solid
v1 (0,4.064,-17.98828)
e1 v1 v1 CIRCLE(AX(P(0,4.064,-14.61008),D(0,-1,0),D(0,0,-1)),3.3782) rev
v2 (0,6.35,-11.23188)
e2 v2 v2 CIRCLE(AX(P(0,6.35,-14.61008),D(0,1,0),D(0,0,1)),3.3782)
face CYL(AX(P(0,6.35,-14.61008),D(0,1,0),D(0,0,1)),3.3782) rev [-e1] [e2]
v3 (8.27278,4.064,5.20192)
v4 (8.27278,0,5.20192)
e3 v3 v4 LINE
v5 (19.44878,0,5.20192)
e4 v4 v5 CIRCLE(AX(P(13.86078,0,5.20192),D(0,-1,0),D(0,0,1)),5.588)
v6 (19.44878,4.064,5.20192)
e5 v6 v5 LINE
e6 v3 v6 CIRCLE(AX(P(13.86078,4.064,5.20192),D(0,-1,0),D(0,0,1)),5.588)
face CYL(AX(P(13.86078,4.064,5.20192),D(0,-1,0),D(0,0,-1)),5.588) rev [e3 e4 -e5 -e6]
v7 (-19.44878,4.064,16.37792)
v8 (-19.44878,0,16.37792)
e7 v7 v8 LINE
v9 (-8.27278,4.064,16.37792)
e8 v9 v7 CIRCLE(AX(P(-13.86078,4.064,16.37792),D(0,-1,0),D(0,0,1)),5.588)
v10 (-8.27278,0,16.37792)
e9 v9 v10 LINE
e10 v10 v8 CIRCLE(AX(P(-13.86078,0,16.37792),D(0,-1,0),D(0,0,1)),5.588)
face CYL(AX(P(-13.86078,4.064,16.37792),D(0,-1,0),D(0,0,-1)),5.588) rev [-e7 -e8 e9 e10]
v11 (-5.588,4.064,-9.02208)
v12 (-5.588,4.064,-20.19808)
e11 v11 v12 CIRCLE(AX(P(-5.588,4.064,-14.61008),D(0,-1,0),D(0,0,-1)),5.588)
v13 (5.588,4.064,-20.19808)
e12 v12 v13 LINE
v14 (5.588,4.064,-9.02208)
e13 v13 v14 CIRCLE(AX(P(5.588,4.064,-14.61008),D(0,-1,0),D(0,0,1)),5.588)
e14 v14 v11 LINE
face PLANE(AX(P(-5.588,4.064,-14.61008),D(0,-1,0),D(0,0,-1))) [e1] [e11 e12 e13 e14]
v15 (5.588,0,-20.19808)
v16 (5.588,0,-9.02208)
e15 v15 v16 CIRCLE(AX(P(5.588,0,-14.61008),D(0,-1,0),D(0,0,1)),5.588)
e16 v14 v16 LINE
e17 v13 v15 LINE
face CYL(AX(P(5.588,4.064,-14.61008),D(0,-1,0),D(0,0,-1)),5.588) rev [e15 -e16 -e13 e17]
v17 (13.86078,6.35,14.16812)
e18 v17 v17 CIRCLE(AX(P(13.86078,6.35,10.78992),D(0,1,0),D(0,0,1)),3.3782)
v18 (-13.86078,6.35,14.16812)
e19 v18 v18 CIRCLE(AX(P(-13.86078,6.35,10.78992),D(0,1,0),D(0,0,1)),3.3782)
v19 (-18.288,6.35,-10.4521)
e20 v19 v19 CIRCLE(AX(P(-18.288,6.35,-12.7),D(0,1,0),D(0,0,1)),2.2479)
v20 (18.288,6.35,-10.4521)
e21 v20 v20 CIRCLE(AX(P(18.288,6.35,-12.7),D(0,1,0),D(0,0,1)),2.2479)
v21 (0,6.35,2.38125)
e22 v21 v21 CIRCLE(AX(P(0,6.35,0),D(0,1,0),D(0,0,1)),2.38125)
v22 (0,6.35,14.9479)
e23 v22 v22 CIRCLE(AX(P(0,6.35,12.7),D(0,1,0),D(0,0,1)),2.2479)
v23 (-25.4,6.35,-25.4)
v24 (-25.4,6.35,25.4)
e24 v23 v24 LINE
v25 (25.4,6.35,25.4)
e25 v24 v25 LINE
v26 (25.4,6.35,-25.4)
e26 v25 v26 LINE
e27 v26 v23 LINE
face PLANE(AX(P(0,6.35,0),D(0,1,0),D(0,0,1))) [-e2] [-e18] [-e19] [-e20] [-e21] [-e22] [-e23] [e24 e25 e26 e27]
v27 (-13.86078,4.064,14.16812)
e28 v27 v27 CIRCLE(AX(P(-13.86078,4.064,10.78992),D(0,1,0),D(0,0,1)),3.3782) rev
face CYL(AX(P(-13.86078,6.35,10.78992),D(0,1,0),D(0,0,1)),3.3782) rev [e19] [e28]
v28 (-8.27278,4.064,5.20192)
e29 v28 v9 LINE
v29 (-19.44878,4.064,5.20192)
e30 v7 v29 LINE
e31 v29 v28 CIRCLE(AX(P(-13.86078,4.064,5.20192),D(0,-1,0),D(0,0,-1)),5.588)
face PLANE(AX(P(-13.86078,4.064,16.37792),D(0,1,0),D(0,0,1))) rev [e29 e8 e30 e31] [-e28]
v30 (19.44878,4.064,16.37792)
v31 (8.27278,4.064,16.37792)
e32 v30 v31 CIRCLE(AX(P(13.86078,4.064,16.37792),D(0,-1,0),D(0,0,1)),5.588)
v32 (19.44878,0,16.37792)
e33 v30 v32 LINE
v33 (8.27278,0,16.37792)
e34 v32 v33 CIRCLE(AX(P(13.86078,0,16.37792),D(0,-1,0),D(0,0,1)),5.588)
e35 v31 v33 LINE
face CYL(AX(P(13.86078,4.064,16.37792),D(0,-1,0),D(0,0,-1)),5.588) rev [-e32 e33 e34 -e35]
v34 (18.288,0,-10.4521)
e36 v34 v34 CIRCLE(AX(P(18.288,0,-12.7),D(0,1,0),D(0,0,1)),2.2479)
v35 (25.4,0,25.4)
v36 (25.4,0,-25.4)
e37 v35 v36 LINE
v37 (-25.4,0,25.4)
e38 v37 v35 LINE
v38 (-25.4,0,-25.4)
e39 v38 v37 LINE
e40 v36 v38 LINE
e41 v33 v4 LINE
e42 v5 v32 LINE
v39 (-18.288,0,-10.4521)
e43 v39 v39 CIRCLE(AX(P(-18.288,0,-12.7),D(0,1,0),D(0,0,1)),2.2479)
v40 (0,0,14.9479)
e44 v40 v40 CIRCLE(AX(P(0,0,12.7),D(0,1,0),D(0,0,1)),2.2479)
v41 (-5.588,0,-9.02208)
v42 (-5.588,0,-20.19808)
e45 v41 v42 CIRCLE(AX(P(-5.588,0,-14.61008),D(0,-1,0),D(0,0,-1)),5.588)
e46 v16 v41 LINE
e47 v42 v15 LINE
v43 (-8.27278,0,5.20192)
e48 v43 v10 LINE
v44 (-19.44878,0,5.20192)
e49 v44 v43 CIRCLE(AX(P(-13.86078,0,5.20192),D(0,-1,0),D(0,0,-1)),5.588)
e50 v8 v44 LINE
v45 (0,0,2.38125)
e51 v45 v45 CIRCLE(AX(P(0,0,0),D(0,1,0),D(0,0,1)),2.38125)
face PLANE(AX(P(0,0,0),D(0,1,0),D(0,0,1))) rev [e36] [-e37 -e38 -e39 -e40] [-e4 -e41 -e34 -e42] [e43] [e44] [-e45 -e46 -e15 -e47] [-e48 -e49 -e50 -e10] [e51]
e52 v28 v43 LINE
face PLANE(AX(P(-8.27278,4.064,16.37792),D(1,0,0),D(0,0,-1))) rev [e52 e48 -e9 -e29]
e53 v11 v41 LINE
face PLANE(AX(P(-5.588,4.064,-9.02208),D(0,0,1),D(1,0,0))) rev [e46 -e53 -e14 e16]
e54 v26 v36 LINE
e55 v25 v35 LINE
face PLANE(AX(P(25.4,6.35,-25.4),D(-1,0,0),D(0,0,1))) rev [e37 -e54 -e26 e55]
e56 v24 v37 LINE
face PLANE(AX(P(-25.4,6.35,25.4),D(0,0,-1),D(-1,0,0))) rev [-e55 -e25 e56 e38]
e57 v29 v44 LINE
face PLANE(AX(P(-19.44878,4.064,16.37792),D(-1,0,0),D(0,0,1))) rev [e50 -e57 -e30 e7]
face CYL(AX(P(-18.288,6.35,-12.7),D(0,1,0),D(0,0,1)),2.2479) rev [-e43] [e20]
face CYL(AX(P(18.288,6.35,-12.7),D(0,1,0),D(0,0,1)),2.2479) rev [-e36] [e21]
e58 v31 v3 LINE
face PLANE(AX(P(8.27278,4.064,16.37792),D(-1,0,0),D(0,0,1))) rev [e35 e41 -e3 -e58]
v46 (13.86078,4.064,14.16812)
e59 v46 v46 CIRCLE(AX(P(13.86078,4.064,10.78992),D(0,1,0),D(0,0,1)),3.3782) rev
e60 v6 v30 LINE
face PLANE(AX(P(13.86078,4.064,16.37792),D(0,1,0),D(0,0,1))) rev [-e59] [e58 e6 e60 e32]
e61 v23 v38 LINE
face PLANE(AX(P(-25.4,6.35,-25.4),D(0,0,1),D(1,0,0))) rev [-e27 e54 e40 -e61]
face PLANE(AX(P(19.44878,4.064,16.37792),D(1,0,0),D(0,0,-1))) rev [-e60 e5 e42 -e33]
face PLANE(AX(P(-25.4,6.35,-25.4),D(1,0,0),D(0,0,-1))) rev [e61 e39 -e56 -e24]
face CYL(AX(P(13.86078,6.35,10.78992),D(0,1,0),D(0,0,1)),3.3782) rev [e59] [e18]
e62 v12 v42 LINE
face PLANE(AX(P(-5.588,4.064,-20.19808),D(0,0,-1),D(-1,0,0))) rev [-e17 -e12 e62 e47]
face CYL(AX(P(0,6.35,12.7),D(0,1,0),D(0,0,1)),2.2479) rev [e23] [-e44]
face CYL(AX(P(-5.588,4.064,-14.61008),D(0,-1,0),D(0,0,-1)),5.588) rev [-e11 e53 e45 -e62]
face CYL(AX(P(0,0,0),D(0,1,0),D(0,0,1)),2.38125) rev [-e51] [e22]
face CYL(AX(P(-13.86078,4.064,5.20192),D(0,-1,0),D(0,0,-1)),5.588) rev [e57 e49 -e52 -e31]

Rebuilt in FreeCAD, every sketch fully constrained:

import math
import FreeCAD as App
import Part
import Sketcher
from FreeCAD import Vector
Q = App.Units.Quantity

doc = App.newDocument("Part")
params = doc.addObject("Spreadsheet::Sheet", "Params")
for row, (alias, value) in enumerate([
    ("sketch1_width", "2 in"),
    ("pad1_length", "0.25 in"),
    ("sketch2_diameter", "0.177 in"),
    ("hole_diameter", "0.177 in"),
    ("sketch3_diameter", "0.266 in"),
    ("hole2_diameter", "0.266 in"),
    ("sketch4_radius", "0.22 in"),
    ("sketch4_width", "0.44 in"),
    ("pocket1_length", "0.16 in"),
    ("sketch5_diameter", "0.1875 in"),
], start=1):
    params.set(f"A{row}", alias)
    params.set(f"B{row}", "=" + value)
    params.setAlias(f"B{row}", alias)

body = doc.addObject("PartDesign::Body", "Body")

# Sketch on XZ plane
sketch1 = doc.addObject("Sketcher::SketchObject", "Sketch")
body.addObject(sketch1)
sketch1.AttachmentSupport = (doc.XZ_Plane, [""])
sketch1.MapMode = "FlatFace"
sketch1.addGeometry(Part.LineSegment(Vector(-25, -25, 0), Vector(-25, 25, 0)), False)
sketch1.addGeometry(Part.LineSegment(Vector(-25, 25, 0), Vector(25, 25, 0)), False)
sketch1.addGeometry(Part.LineSegment(Vector(25, 25, 0), Vector(25, -25, 0)), False)
sketch1.addGeometry(Part.LineSegment(Vector(25, -25, 0), Vector(-25, -25, 0)), False)
sketch1.addConstraint(Sketcher.Constraint("Coincident", 0, 2, 1, 1))
sketch1.addConstraint(Sketcher.Constraint("Coincident", 1, 2, 2, 1))
sketch1.addConstraint(Sketcher.Constraint("Coincident", 2, 2, 3, 1))
sketch1.addConstraint(Sketcher.Constraint("Coincident", 3, 2, 0, 1))
sketch1.addConstraint(Sketcher.Constraint("Vertical", 0))
sketch1.addConstraint(Sketcher.Constraint("Horizontal", 1))
sketch1.addConstraint(Sketcher.Constraint("Vertical", 2))
sketch1.addConstraint(Sketcher.Constraint("Horizontal", 3))
sketch1.addConstraint(Sketcher.Constraint("Symmetric", 0, 2, 2, 2, -1, 1))
sketch1.addConstraint(Sketcher.Constraint("Equal", 3, 0))
sketch1.addConstraint(Sketcher.Constraint("DistanceX", 1, 1, 1, 2, Q("2 in")))
sketch1.setExpression("Constraints[10]", "Params.sketch1_width")
pad1 = doc.addObject("PartDesign::Pad", "Pad")
body.addObject(pad1)
pad1.Profile = sketch1
pad1.setExpression("Length", "Params.pad1_length")
pad1.Reversed = True

# Sketch on XZ plane
sketch2 = doc.addObject("Sketcher::SketchObject", "Sketch001")
body.addObject(sketch2)
sketch2.AttachmentSupport = (doc.XZ_Plane, [""])
sketch2.MapMode = "FlatFace"
sketch2.AttachmentOffset = App.Placement(Vector(0, 0, -0.25 * 25.4), App.Rotation())
sketch2.addGeometry(Part.Circle(Vector(-18.3, -12.7, 0), Vector(0, 0, 1), 2.2), False)
sketch2.addGeometry(Part.Circle(Vector(18.3, -12.7, 0), Vector(0, 0, 1), 2.2), False)
sketch2.addGeometry(Part.Circle(Vector(0, 12.7, 0), Vector(0, 0, 1), 2.2), False)
sketch2.addConstraint(Sketcher.Constraint("Equal", 0, 1))
sketch2.addConstraint(Sketcher.Constraint("Equal", 1, 2))
sketch2.addConstraint(Sketcher.Constraint("Symmetric", 0, 3, 1, 3, -2))
sketch2.addConstraint(Sketcher.Constraint("PointOnObject", 2, 3, -2))
sketch2.addConstraint(Sketcher.Constraint("Diameter", 0, Q("0.177 in")))
sketch2.addConstraint(Sketcher.Constraint("DistanceY", 0, 3, 2, 3, Q("1 in")))
sketch2.addConstraint(Sketcher.Constraint("DistanceY", 0, 3, -1, 1, Q("0.5 in")))
sketch2.addConstraint(Sketcher.Constraint("DistanceX", 0, 3, -1, 1, Q("0.72 in")))
sketch2.setExpression("Constraints[4]", "Params.sketch2_diameter")
doc.recompute()
hole = doc.addObject("PartDesign::Hole", "Hole")
body.addObject(hole)
hole.Profile = sketch2
hole.ThreadType = "None"
hole.setExpression("Diameter", "Params.hole_diameter")
hole.DepthType = "ThroughAll"
hole.Reversed = True

# Sketch on XZ plane
sketch3 = doc.addObject("Sketcher::SketchObject", "Sketch002")
body.addObject(sketch3)
sketch3.AttachmentSupport = (doc.XZ_Plane, [""])
sketch3.MapMode = "FlatFace"
sketch3.AttachmentOffset = App.Placement(Vector(0, 0, -0.25 * 25.4), App.Rotation())
sketch3.addGeometry(Part.Circle(Vector(0, -14.6, 0), Vector(0, 0, 1), 3.4), False)
sketch3.addGeometry(Part.Circle(Vector(-13.9, 10.8, 0), Vector(0, 0, 1), 3.4), False)
sketch3.addGeometry(Part.Circle(Vector(13.9, 10.8, 0), Vector(0, 0, 1), 3.4), False)
sketch3.addConstraint(Sketcher.Constraint("Equal", 0, 1))
sketch3.addConstraint(Sketcher.Constraint("Equal", 1, 2))
sketch3.addConstraint(Sketcher.Constraint("Symmetric", 1, 3, 2, 3, -2))
sketch3.addConstraint(Sketcher.Constraint("PointOnObject", 0, 3, -2))
sketch3.addConstraint(Sketcher.Constraint("Diameter", 0, Q("0.266 in")))
sketch3.addConstraint(Sketcher.Constraint("DistanceY", 0, 3, 1, 3, Q("1 in")))
sketch3.addConstraint(Sketcher.Constraint("DistanceY", 0, 3, -1, 1, Q("0.5752 in")))
sketch3.addConstraint(Sketcher.Constraint("DistanceX", 1, 3, -1, 1, Q("0.5457 in")))
sketch3.setExpression("Constraints[4]", "Params.sketch3_diameter")
doc.recompute()
hole2 = doc.addObject("PartDesign::Hole", "Hole001")
body.addObject(hole2)
hole2.Profile = sketch3
hole2.ThreadType = "None"
hole2.setExpression("Diameter", "Params.hole2_diameter")
hole2.DepthType = "ThroughAll"
hole2.Reversed = True

# Sketch on XZ plane
sketch4 = doc.addObject("Sketcher::SketchObject", "Sketch003")
body.addObject(sketch4)
sketch4.AttachmentSupport = (doc.XZ_Plane, [""])
sketch4.MapMode = "FlatFace"
sketch4.addGeometry(Part.LineSegment(Vector(-19, 16, 0), Vector(-19, 5, 0)), False)
sketch4.addGeometry(Part.ArcOfCircle(Part.Circle(Vector(-14, 5, 0), Vector(0, 0, 1), 6), math.radians(180), math.radians(360)), False)
sketch4.addGeometry(Part.LineSegment(Vector(-8, 5, 0), Vector(-8, 16, 0)), False)
sketch4.addGeometry(Part.ArcOfCircle(Part.Circle(Vector(-14, 16, 0), Vector(0, 0, 1), 6), math.radians(0), math.radians(180)), False)
sketch4.addGeometry(Part.LineSegment(Vector(8, 16, 0), Vector(8, 5, 0)), False)
sketch4.addGeometry(Part.ArcOfCircle(Part.Circle(Vector(14, 5, 0), Vector(0, 0, 1), 6), math.radians(180), math.radians(360)), False)
sketch4.addGeometry(Part.LineSegment(Vector(19, 5, 0), Vector(19, 16, 0)), False)
sketch4.addGeometry(Part.ArcOfCircle(Part.Circle(Vector(14, 16, 0), Vector(0, 0, 1), 6), math.radians(0), math.radians(180)), False)
sketch4.addGeometry(Part.LineSegment(Vector(6, -9, 0), Vector(-6, -9, 0)), False)
sketch4.addGeometry(Part.ArcOfCircle(Part.Circle(Vector(-6, -15, 0), Vector(0, 0, 1), 6), math.radians(90), math.radians(270)), False)
sketch4.addGeometry(Part.LineSegment(Vector(-6, -20, 0), Vector(6, -20, 0)), False)
sketch4.addGeometry(Part.ArcOfCircle(Part.Circle(Vector(6, -15, 0), Vector(0, 0, 1), 6), math.radians(-90), math.radians(90)), False)
sketch4.addConstraint(Sketcher.Constraint("Tangent", 0, 2, 1, 1))
sketch4.addConstraint(Sketcher.Constraint("Tangent", 1, 2, 2, 1))
sketch4.addConstraint(Sketcher.Constraint("Tangent", 2, 2, 3, 1))
sketch4.addConstraint(Sketcher.Constraint("Tangent", 3, 2, 0, 1))
sketch4.addConstraint(Sketcher.Constraint("Tangent", 4, 2, 5, 1))
sketch4.addConstraint(Sketcher.Constraint("Tangent", 5, 2, 6, 1))
sketch4.addConstraint(Sketcher.Constraint("Tangent", 6, 2, 7, 1))
sketch4.addConstraint(Sketcher.Constraint("Tangent", 7, 2, 4, 1))
sketch4.addConstraint(Sketcher.Constraint("Tangent", 8, 2, 9, 1))
sketch4.addConstraint(Sketcher.Constraint("Tangent", 9, 2, 10, 1))
sketch4.addConstraint(Sketcher.Constraint("Tangent", 10, 2, 11, 1))
sketch4.addConstraint(Sketcher.Constraint("Tangent", 11, 2, 8, 1))
sketch4.addConstraint(Sketcher.Constraint("Vertical", 0))
sketch4.addConstraint(Sketcher.Constraint("Vertical", 2))
sketch4.addConstraint(Sketcher.Constraint("Vertical", 4))
sketch4.addConstraint(Sketcher.Constraint("Vertical", 6))
sketch4.addConstraint(Sketcher.Constraint("Horizontal", 8))
sketch4.addConstraint(Sketcher.Constraint("Horizontal", 10))
sketch4.addConstraint(Sketcher.Constraint("Equal", 3, 5))
sketch4.addConstraint(Sketcher.Constraint("Equal", 7, 9))
sketch4.addConstraint(Sketcher.Constraint("Symmetric", 1, 3, 5, 3, -2))
sketch4.addConstraint(Sketcher.Constraint("Horizontal", 3, 3, 7, 3))
sketch4.addConstraint(Sketcher.Constraint("Equal", 10, 0))
sketch4.addConstraint(Sketcher.Constraint("Radius", 1, Q("0.22 in")))
sketch4.addConstraint(Sketcher.Constraint("DistanceY", 9, 2, 1, 2, Q("1 in")))
sketch4.addConstraint(Sketcher.Constraint("DistanceX", 8, 2, 8, 1, Q("0.44 in")))
sketch4.addConstraint(Sketcher.Constraint("DistanceX", 9, 3, -1, 1, Q("0.22 in")))
sketch4.addConstraint(Sketcher.Constraint("DistanceX", 1, 3, -1, 1, Q("0.5457 in")))
sketch4.addConstraint(Sketcher.Constraint("DistanceY", -1, 1, 1, 3, Q("0.2048 in")))
sketch4.setExpression("Constraints[23]", "Params.sketch4_radius")
sketch4.setExpression("Constraints[25]", "Params.sketch4_width")
pocket1 = doc.addObject("PartDesign::Pocket", "Pocket")
body.addObject(pocket1)
pocket1.Profile = sketch4
pocket1.setExpression("Length", "Params.pocket1_length")

# Sketch on XZ plane
sketch5 = doc.addObject("Sketcher::SketchObject", "Sketch004")
body.addObject(sketch5)
sketch5.AttachmentSupport = (doc.XZ_Plane, [""])
sketch5.MapMode = "FlatFace"
sketch5.AttachmentOffset = App.Placement(Vector(0, 0, -0.25 * 25.4), App.Rotation())
sketch5.addGeometry(Part.Circle(Vector(0, 0, 0), Vector(0, 0, 1), 2.4), False)
sketch5.addConstraint(Sketcher.Constraint("Coincident", 0, 3, -1, 1))
sketch5.addConstraint(Sketcher.Constraint("Diameter", 0, Q("0.1875 in")))
sketch5.setExpression("Constraints[1]", "Params.sketch5_diameter")
pocket2 = doc.addObject("PartDesign::Pocket", "Pocket001")
body.addObject(pocket2)
pocket2.Profile = sketch5
pocket2.Type = "ThroughAll"
pocket2.Reversed = True

doc.recompute()
